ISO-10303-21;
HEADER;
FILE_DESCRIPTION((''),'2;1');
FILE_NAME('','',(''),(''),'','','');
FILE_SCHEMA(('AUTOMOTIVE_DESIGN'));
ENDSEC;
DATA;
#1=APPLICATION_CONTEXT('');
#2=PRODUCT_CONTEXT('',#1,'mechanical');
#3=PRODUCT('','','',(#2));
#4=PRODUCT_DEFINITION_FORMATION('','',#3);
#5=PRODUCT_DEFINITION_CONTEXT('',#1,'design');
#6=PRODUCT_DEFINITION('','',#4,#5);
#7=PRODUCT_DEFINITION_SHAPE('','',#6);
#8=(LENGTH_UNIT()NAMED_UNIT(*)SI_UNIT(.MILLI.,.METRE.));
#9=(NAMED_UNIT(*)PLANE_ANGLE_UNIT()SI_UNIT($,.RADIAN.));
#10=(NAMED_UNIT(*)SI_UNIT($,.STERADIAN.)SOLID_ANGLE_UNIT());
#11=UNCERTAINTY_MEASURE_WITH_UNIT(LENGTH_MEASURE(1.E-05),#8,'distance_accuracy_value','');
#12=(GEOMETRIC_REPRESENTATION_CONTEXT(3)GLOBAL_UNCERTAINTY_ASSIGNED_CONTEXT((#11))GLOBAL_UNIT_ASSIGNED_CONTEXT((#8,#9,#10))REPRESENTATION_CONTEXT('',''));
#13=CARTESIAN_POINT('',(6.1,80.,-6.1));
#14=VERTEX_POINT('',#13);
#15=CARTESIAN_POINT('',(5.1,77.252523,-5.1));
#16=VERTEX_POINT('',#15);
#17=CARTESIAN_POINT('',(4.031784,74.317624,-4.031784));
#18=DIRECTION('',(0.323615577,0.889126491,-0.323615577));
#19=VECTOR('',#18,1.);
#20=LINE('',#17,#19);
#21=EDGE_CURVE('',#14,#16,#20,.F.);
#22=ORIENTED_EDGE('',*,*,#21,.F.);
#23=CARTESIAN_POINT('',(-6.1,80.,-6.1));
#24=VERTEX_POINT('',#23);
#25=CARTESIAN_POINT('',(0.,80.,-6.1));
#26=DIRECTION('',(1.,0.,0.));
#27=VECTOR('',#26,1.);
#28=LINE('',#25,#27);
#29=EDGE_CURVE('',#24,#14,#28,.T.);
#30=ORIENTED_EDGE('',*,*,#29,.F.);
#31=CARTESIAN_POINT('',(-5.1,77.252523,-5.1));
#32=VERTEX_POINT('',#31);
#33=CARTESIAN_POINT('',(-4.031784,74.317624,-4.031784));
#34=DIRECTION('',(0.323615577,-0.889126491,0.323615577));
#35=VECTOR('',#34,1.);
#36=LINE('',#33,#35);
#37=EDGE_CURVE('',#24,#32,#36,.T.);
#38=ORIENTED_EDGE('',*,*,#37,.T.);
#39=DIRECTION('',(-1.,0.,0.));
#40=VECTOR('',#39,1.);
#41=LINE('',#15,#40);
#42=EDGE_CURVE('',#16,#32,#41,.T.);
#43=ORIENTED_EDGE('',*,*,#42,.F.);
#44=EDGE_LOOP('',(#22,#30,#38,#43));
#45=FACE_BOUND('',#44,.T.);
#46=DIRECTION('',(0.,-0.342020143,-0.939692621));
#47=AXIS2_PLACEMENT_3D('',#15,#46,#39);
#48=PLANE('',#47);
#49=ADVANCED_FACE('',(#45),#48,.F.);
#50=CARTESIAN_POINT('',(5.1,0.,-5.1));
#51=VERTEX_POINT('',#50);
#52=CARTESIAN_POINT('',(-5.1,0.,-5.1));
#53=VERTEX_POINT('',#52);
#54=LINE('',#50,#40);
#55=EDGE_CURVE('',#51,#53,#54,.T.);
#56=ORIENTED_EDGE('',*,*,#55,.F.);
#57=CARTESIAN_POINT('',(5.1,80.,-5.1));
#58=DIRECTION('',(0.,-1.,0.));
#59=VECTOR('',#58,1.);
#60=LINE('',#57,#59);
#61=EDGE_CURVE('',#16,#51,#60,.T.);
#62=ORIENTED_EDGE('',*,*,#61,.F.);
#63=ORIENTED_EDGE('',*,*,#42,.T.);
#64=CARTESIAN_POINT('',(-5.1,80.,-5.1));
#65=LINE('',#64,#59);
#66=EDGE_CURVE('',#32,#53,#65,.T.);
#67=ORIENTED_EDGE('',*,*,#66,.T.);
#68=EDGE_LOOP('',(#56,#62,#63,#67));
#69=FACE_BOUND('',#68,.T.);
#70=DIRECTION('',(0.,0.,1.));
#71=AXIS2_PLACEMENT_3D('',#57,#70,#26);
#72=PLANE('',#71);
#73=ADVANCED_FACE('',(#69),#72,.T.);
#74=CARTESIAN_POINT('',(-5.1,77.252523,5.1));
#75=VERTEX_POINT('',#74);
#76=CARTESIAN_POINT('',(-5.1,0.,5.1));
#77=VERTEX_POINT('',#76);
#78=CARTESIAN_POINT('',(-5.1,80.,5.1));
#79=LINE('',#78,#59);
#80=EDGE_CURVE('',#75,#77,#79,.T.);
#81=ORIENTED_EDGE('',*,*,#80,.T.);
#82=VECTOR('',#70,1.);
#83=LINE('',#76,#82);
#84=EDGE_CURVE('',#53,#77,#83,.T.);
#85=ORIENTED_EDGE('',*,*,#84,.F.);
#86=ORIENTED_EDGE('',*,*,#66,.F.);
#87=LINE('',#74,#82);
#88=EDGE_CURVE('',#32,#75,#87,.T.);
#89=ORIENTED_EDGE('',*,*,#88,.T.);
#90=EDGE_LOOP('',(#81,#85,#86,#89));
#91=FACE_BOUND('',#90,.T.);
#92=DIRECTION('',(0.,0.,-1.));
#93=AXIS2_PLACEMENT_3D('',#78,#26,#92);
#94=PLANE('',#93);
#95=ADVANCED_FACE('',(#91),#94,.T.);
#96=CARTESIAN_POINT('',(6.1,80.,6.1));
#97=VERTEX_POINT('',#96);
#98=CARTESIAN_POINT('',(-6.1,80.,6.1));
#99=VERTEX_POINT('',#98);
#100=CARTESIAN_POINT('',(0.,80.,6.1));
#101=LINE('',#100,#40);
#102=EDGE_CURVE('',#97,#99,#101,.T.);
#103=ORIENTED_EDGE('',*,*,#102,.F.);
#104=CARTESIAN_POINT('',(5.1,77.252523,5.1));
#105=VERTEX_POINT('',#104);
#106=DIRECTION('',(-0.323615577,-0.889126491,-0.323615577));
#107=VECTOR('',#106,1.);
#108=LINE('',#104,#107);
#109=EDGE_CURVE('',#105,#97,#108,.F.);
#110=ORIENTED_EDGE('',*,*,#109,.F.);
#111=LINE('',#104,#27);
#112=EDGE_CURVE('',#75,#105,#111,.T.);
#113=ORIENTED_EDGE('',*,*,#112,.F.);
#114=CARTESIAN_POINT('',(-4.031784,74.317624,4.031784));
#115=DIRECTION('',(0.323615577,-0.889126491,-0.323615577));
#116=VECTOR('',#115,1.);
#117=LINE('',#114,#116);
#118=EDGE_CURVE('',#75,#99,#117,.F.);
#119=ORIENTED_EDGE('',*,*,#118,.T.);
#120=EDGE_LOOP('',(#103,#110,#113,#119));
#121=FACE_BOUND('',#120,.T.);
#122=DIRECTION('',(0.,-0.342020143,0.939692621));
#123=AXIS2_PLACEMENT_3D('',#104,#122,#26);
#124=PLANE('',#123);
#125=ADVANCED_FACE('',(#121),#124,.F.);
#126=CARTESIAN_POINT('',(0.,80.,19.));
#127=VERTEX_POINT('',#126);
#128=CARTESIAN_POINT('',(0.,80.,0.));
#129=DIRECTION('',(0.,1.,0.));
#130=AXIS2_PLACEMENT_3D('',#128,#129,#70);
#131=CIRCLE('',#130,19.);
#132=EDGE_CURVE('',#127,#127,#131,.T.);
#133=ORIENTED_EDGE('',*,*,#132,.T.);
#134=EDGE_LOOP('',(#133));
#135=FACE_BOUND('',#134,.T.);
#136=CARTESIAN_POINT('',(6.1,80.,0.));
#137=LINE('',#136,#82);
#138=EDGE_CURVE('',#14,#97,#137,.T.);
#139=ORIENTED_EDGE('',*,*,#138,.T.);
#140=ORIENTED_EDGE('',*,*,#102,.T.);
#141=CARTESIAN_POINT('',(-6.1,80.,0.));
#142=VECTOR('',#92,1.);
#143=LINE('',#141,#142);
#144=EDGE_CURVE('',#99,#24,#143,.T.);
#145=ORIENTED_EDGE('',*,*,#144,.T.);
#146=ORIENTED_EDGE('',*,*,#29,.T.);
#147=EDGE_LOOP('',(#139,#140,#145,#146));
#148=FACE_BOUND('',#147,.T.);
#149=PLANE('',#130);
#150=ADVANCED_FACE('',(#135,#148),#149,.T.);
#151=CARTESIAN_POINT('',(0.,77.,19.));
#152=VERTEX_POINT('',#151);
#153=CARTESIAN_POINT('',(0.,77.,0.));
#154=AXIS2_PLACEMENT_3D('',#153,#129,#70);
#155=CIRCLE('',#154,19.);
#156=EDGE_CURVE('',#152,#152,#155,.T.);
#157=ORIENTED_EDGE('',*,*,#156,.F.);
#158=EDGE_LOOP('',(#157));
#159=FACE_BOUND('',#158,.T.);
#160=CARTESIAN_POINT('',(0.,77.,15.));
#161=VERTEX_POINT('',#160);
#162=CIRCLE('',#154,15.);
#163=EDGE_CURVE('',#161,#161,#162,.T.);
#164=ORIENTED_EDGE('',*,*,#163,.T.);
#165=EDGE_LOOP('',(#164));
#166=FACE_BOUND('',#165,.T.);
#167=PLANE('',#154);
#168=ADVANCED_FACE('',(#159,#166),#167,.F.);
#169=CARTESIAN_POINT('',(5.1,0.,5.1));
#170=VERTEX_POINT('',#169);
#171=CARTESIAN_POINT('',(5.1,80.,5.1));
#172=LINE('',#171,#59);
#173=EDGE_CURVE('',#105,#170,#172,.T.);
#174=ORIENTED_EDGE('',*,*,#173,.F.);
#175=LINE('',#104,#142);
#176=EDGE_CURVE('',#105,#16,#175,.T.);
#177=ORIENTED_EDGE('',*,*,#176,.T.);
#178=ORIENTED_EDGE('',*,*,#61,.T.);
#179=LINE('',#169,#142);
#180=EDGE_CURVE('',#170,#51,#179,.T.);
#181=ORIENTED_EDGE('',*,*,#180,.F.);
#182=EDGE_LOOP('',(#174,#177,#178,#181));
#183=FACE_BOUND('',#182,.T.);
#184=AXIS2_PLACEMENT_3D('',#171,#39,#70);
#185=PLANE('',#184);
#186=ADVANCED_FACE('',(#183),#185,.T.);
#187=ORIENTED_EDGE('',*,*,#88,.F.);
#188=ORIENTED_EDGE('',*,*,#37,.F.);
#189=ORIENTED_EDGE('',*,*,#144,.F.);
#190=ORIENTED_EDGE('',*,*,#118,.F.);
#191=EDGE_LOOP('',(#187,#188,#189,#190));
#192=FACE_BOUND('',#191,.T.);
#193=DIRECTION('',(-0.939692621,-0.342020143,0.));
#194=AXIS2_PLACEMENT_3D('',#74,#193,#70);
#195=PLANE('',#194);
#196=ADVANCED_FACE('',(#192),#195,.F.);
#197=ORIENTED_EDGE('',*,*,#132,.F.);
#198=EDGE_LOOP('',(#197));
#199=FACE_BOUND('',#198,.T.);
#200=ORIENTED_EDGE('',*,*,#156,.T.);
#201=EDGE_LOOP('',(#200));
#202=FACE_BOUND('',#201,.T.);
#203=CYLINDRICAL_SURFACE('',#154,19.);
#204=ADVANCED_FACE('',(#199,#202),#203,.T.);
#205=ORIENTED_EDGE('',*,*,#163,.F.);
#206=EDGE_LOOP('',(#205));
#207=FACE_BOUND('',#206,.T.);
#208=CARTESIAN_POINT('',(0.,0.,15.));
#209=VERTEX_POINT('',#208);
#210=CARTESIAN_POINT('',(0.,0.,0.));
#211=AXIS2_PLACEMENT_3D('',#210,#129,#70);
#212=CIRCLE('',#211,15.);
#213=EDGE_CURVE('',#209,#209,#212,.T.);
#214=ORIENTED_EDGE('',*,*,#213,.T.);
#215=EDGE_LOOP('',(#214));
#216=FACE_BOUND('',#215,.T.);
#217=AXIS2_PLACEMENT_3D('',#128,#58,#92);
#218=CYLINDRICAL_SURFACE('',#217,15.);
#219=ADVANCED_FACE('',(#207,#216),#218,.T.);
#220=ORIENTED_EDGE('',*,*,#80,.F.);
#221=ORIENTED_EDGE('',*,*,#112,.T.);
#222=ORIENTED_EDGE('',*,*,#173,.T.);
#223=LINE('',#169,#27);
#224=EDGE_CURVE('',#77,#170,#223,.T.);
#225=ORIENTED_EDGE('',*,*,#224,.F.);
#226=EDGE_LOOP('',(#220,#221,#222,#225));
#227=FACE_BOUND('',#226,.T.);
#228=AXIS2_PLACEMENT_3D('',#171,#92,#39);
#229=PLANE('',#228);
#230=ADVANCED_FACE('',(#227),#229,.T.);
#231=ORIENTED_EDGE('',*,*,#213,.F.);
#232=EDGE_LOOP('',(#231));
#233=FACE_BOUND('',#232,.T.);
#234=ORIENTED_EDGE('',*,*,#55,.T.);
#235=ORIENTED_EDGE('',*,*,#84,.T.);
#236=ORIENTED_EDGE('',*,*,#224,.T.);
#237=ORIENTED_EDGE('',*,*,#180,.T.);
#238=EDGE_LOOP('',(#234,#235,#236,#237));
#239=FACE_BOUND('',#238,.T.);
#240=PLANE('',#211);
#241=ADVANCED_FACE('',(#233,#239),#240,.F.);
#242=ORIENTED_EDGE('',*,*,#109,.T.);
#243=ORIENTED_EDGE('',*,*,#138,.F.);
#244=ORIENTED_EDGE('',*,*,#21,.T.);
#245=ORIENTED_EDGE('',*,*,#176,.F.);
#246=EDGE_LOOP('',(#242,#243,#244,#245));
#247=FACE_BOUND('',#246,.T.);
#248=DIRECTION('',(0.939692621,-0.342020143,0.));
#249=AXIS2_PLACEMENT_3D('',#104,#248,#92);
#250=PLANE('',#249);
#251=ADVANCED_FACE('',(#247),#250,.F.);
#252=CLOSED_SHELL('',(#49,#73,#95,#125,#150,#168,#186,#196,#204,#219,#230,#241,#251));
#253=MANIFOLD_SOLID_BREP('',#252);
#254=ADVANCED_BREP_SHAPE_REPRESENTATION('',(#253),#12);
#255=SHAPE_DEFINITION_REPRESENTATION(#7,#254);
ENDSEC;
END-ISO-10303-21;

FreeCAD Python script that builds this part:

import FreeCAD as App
import Part
import Sketcher


def edges_at(feature, points):
    """Names of the edges that pass closest to the given points."""
    edges = feature.Shape.Edges
    near = lambda p: min(range(len(edges)), key=lambda i: edges[i].distToShape(Part.Vertex(*p))[0])
    return sorted({f"Edge{near(p) + 1}" for p in points})

doc = App.newDocument("Part")
params = doc.addObject("Spreadsheet::Sheet", "Params")
for row, (alias, value) in enumerate([
    ("sketch1_diameter", "30 mm"),
    ("sketch1_width", "10.2 mm"),
    ("pad1_length", "80 mm"),
    ("sketch2_diameter", "38 mm"),
    ("sketch2_width", "10.2 mm"),
    ("pad2_length", "3 mm"),
    ("chamfer_size", "1 mm"),
    ("chamfer_size2", "2.747477 mm"),
], start=1):
    params.set(f"A{row}", alias)
    params.set(f"B{row}", "=" + value)
    params.setAlias(f"B{row}", alias)

body = doc.addObject("PartDesign::Body", "Body")

# Sketch on XZ plane
sketch1 = body.newObject("Sketcher::SketchObject", "Sketch")
sketch1.AttachmentSupport = (doc.getObject("XZ_Plane"), [""])
sketch1.MapMode = "FlatFace"
sketch1.addGeometry(Part.Circle(App.Vector(0, 0, 0), App.Vector(0, 0, 1), 15), False)
sketch1.addGeometry(Part.LineSegment(App.Vector(5.1, 5.1, 0), App.Vector(-5.1, 5.1, 0)), False)
sketch1.addGeometry(Part.LineSegment(App.Vector(-5.1, 5.1, 0), App.Vector(-5.1, -5.1, 0)), False)
sketch1.addGeometry(Part.LineSegment(App.Vector(-5.1, -5.1, 0), App.Vector(5.1, -5.1, 0)), False)
sketch1.addGeometry(Part.LineSegment(App.Vector(5.1, -5.1, 0), App.Vector(5.1, 5.1, 0)), False)
sketch1.addConstraint(Sketcher.Constraint("Coincident", 1, 2, 2, 1))
sketch1.addConstraint(Sketcher.Constraint("Coincident", 2, 2, 3, 1))
sketch1.addConstraint(Sketcher.Constraint("Coincident", 3, 2, 4, 1))
sketch1.addConstraint(Sketcher.Constraint("Coincident", 4, 2, 1, 1))
sketch1.addConstraint(Sketcher.Constraint("Horizontal", 1))
sketch1.addConstraint(Sketcher.Constraint("Vertical", 2))
sketch1.addConstraint(Sketcher.Constraint("Horizontal", 3))
sketch1.addConstraint(Sketcher.Constraint("Vertical", 4))
sketch1.addConstraint(Sketcher.Constraint("Coincident", 0, 3, -1, 1))
sketch1.addConstraint(Sketcher.Constraint("Symmetric", 1, 2, 3, 2, -1, 1))
sketch1.addConstraint(Sketcher.Constraint("Equal", 3, 2))
sketch1.addConstraint(Sketcher.Constraint("Diameter", 0, 30.0))
sketch1.addConstraint(Sketcher.Constraint("DistanceX", 1, 2, 1, 1, 10.2))
sketch1.setExpression("Constraints[11]", "Params.sketch1_diameter")
sketch1.setExpression("Constraints[12]", "Params.sketch1_width")
pad1 = body.newObject("PartDesign::Pad", "Pad")
pad1.Profile = sketch1
pad1.setExpression("Length", "Params.pad1_length")
pad1.Reversed = True

# Sketch on XZ plane
sketch2 = body.newObject("Sketcher::SketchObject", "Sketch001")
sketch2.AttachmentSupport = (doc.getObject("XZ_Plane"), [""])
sketch2.MapMode = "FlatFace"
sketch2.AttachmentOffset = App.Placement(App.Vector(0, 0, -80), App.Rotation())
sketch2.addGeometry(Part.Circle(App.Vector(0, 0, 0), App.Vector(0, 0, 1), 19), False)
sketch2.addGeometry(Part.LineSegment(App.Vector(5.1, 5.1, 0), App.Vector(-5.1, 5.1, 0)), False)
sketch2.addGeometry(Part.LineSegment(App.Vector(-5.1, 5.1, 0), App.Vector(-5.1, -5.1, 0)), False)
sketch2.addGeometry(Part.LineSegment(App.Vector(-5.1, -5.1, 0), App.Vector(5.1, -5.1, 0)), False)
sketch2.addGeometry(Part.LineSegment(App.Vector(5.1, -5.1, 0), App.Vector(5.1, 5.1, 0)), False)
sketch2.addConstraint(Sketcher.Constraint("Coincident", 1, 2, 2, 1))
sketch2.addConstraint(Sketcher.Constraint("Coincident", 2, 2, 3, 1))
sketch2.addConstraint(Sketcher.Constraint("Coincident", 3, 2, 4, 1))
sketch2.addConstraint(Sketcher.Constraint("Coincident", 4, 2, 1, 1))
sketch2.addConstraint(Sketcher.Constraint("Horizontal", 1))
sketch2.addConstraint(Sketcher.Constraint("Vertical", 2))
sketch2.addConstraint(Sketcher.Constraint("Horizontal", 3))
sketch2.addConstraint(Sketcher.Constraint("Vertical", 4))
sketch2.addConstraint(Sketcher.Constraint("Coincident", 0, 3, -1, 1))
sketch2.addConstraint(Sketcher.Constraint("Symmetric", 1, 2, 3, 2, -1, 1))
sketch2.addConstraint(Sketcher.Constraint("Equal", 3, 2))
sketch2.addConstraint(Sketcher.Constraint("Diameter", 0, 38.0))
sketch2.addConstraint(Sketcher.Constraint("DistanceX", 1, 2, 1, 1, 10.2))
sketch2.setExpression("Constraints[11]", "Params.sketch2_diameter")
sketch2.setExpression("Constraints[12]", "Params.sketch2_width")
pad2 = body.newObject("PartDesign::Pad", "Pad001")
pad2.Profile = sketch2
pad2.setExpression("Length", "Params.pad2_length")
doc.recompute()

chamfer = body.newObject("PartDesign::Chamfer", "Chamfer")
chamfer.Base = (pad2, edges_at(pad2, [
    (0, 80, -5.1),
    (-5.1, 80, 0),
    (0, 80, 5.1),
    (5.1, 80, 0),
]))
chamfer.ChamferType = "Two distances"
chamfer.setExpression("Size", "Params.chamfer_size")
chamfer.setExpression("Size2", "Params.chamfer_size2")
chamfer.FlipDirection = True

doc.recompute()
